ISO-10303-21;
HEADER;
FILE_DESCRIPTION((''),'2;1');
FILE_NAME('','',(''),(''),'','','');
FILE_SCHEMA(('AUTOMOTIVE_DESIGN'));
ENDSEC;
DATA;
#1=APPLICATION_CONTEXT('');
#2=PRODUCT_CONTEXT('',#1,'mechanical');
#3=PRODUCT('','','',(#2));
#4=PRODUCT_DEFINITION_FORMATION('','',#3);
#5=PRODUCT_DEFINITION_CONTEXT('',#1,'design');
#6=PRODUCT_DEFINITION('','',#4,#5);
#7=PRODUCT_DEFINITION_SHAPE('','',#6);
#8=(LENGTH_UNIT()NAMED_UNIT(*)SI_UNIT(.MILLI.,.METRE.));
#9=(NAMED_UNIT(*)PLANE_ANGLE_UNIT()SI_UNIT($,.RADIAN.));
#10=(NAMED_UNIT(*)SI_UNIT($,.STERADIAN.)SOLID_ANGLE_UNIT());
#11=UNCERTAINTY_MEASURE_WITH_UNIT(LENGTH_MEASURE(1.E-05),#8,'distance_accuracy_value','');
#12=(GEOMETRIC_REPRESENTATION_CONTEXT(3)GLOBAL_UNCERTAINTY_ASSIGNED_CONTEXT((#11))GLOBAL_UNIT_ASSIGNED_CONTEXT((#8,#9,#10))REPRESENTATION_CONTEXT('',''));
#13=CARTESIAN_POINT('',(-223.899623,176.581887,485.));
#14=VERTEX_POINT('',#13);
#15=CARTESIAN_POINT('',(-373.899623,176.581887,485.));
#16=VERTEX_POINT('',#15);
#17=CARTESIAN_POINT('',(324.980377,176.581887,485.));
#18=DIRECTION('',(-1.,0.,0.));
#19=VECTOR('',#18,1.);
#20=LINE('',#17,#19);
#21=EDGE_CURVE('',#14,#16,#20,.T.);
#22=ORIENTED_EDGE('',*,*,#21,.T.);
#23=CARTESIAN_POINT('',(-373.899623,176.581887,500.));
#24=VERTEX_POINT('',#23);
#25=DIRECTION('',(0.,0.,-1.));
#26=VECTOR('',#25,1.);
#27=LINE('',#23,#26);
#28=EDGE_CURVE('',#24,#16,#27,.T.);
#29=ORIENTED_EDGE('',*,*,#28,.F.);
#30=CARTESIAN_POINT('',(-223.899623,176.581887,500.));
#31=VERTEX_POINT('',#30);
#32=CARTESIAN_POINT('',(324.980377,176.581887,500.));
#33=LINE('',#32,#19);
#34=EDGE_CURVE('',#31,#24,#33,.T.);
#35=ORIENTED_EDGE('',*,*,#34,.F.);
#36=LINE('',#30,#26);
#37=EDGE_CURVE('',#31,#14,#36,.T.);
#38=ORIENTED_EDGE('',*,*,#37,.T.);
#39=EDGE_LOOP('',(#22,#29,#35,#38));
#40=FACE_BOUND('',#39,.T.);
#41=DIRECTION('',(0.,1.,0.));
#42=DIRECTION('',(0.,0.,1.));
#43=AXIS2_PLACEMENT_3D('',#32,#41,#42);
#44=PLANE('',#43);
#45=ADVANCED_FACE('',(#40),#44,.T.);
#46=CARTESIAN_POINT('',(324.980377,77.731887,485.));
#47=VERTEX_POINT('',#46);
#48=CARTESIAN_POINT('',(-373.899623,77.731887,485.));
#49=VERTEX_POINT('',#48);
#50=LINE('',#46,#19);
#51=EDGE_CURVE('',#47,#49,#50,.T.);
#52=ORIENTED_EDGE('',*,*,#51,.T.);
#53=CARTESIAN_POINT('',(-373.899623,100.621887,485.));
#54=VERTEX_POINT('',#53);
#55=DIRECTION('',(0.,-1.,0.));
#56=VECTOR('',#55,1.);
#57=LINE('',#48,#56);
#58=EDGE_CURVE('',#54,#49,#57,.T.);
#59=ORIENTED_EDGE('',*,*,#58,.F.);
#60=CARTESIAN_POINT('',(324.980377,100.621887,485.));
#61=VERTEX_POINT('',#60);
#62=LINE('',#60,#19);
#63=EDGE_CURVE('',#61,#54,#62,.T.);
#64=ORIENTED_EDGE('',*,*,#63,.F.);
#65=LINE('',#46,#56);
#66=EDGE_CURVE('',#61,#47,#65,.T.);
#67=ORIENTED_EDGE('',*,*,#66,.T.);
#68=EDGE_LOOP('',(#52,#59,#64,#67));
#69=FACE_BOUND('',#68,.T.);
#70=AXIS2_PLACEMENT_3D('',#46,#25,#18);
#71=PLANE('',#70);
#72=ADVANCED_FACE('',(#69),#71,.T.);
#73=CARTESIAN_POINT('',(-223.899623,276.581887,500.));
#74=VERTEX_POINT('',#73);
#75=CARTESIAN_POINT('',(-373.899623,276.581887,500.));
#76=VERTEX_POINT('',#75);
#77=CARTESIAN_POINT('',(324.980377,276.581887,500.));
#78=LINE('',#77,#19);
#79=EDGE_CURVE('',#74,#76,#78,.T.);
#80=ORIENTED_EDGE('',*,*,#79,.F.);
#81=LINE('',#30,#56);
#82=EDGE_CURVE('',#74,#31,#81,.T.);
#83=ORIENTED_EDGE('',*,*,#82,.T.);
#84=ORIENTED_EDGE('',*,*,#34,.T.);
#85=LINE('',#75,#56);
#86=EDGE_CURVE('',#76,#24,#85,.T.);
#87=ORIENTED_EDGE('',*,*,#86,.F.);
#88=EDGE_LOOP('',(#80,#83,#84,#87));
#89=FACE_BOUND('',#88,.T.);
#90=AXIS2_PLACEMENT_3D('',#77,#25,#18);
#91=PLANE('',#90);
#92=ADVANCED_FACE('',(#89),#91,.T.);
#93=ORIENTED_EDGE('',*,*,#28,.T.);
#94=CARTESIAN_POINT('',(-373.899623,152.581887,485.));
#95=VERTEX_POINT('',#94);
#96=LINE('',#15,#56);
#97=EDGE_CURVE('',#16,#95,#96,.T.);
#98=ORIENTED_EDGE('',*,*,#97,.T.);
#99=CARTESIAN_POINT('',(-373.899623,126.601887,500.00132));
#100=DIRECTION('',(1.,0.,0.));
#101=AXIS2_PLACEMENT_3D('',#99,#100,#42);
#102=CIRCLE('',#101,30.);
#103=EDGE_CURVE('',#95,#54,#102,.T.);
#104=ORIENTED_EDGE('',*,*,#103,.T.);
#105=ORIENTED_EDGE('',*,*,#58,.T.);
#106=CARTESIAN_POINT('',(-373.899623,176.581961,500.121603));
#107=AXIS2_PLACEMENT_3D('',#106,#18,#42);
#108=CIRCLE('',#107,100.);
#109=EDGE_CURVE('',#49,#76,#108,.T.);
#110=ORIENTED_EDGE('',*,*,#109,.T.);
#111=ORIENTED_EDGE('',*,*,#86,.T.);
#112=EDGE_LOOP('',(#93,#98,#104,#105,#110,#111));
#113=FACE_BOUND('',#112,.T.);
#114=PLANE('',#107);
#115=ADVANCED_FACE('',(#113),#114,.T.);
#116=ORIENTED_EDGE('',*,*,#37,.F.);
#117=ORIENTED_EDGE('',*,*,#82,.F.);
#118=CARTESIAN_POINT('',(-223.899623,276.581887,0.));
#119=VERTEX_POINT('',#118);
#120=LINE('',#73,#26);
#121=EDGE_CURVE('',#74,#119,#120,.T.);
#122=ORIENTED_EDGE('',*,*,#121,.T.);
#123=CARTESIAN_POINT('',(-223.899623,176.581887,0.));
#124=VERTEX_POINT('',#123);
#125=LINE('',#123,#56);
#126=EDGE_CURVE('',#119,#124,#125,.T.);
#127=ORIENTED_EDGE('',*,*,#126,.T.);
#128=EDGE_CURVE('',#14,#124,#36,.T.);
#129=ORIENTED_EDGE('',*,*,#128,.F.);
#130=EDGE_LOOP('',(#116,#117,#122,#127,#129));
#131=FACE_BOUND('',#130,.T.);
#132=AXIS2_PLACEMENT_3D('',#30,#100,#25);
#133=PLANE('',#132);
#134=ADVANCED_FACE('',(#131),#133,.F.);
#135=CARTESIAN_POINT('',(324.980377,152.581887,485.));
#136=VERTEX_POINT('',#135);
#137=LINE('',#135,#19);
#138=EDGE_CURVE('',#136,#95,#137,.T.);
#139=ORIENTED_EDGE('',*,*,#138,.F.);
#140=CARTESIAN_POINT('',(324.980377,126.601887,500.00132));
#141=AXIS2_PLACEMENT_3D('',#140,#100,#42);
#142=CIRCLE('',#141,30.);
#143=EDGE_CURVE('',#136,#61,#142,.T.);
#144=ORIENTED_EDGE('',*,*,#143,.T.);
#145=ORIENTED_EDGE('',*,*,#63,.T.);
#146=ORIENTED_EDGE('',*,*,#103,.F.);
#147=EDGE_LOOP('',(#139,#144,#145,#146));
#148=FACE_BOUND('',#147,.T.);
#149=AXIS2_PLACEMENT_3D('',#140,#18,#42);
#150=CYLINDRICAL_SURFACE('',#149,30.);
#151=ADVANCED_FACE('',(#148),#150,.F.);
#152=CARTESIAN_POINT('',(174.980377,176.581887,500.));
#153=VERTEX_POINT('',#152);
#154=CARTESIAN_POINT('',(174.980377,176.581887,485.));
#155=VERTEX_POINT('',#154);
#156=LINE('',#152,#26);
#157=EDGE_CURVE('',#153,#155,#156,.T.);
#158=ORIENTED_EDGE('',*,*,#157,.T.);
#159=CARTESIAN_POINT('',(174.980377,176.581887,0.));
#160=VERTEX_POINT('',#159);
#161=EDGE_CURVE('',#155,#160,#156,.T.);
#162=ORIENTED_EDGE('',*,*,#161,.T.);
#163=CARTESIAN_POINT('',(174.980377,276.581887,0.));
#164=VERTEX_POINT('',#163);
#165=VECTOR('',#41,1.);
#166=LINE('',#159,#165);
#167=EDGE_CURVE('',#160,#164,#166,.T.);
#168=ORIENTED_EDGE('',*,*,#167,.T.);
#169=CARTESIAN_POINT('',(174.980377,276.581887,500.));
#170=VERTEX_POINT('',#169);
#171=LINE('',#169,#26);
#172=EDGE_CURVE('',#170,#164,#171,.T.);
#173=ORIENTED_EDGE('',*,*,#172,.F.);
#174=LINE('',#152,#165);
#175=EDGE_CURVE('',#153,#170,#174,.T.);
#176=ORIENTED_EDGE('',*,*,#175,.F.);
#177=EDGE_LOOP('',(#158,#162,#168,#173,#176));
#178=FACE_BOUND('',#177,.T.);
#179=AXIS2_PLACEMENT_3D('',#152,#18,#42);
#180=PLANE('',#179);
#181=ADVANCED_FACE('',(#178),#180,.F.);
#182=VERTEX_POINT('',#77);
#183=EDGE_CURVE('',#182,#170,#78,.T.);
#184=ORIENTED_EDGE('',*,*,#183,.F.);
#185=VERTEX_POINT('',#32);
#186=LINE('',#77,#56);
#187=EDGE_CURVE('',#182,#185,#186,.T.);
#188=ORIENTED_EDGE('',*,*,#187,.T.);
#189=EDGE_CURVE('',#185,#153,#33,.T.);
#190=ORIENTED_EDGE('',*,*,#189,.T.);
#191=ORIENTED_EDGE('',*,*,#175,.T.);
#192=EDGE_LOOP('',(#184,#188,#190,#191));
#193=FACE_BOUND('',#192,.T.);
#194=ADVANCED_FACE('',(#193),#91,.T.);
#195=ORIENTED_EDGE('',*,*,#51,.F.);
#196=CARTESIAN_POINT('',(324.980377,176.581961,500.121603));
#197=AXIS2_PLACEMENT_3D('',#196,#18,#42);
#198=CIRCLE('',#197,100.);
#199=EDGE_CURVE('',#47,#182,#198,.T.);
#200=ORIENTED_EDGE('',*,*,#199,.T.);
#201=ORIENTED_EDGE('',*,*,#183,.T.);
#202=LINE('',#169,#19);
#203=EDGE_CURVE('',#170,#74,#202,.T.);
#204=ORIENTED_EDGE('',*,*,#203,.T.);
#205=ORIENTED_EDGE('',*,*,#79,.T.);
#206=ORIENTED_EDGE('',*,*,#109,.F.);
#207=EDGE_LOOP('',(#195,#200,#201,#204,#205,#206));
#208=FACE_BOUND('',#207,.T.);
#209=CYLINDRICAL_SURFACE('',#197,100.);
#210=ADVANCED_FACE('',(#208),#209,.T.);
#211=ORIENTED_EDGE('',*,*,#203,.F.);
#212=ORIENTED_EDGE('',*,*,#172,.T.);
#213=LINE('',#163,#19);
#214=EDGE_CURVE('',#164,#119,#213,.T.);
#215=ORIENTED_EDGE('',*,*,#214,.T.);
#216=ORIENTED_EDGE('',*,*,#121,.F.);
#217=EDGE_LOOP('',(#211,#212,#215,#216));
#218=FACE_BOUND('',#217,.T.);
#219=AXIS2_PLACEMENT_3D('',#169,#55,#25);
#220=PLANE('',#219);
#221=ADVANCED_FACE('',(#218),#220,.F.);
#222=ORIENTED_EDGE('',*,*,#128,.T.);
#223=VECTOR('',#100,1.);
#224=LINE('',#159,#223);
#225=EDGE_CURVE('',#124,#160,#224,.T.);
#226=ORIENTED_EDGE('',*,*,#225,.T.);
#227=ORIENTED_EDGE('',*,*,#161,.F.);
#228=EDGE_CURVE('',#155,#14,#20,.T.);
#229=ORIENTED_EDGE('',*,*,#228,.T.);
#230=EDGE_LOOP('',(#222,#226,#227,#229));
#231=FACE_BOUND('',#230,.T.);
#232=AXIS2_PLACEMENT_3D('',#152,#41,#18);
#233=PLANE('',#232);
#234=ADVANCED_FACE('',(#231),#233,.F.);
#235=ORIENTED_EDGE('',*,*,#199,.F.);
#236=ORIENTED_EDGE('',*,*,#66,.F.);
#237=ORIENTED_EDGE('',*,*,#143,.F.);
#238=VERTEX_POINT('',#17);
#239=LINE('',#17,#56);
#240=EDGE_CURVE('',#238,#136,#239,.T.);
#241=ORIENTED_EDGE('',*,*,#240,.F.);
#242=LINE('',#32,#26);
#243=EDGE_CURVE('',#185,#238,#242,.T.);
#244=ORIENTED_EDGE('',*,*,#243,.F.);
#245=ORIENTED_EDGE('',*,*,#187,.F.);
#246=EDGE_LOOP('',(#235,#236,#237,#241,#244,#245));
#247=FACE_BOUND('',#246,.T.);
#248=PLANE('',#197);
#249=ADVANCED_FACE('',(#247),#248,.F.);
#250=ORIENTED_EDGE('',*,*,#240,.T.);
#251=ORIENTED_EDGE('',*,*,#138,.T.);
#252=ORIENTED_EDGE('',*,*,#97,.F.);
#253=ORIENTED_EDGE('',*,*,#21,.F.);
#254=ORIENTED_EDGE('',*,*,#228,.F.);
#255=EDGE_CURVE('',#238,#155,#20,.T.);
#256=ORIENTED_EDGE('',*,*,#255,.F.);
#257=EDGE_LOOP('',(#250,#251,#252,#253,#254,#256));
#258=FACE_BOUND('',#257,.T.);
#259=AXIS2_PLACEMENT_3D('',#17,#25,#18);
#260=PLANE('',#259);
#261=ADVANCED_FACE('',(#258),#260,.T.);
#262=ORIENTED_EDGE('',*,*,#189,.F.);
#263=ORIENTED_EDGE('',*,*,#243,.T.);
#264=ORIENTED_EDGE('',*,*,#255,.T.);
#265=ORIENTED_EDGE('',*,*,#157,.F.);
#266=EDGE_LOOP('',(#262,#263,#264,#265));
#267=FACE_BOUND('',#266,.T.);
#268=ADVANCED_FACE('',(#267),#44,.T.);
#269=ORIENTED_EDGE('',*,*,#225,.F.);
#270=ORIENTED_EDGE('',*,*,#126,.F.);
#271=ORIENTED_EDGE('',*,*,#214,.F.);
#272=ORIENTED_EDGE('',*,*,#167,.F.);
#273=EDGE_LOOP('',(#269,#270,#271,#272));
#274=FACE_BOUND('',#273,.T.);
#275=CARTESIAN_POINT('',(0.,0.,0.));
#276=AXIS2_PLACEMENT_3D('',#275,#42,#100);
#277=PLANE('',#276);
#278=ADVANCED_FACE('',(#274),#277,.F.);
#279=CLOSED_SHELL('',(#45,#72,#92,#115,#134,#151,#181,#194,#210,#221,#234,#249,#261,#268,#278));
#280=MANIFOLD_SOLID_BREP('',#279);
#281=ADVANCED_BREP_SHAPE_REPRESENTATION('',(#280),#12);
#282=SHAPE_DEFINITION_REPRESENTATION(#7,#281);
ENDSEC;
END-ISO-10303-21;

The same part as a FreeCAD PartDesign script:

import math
import FreeCAD as App
import Part
import Sketcher
Q = App.Units.Quantity


def add_polygon(sketch, points):
    """Adds a closed chain of lines whose ends are joined by coincident constraints."""
    first, n = sketch.GeometryCount, len(points)
    for a, b in zip(points, points[1:] + points[:1]):
        sketch.addGeometry(Part.LineSegment(App.Vector(*a, 0), App.Vector(*b, 0)), False)
    for i in range(n):
        sketch.addConstraint(Sketcher.Constraint("Coincident", first + i, 2, first + (i + 1) % n, 1))

doc = App.newDocument("Part")
body = doc.addObject("PartDesign::Body", "Body")

sketch1 = body.newObject("Sketcher::SketchObject", "Sketch")
sketch1.AttachmentSupport = (doc.getObject("XY_Plane"), [""])
sketch1.MapMode = "FlatFace"
add_polygon(sketch1, [(-224, 277), (-224, 177), (175, 177), (175, 277)])
sketch1.addConstraint([
    Sketcher.Constraint("Vertical", 0),
    Sketcher.Constraint("Horizontal", 1),
    Sketcher.Constraint("Vertical", 2),
    Sketcher.Constraint("Horizontal", 3),
    Sketcher.Constraint("DistanceY", 0, 2, 0, 1, Q("100 mm")),
    Sketcher.Constraint("DistanceX", 1, 1, 1, 2, Q("398.88 mm")),
    Sketcher.Constraint("DistanceX", 0, 2, -1, 1, Q("223.899623 mm")),
    Sketcher.Constraint("DistanceY", -1, 1, 0, 2, Q("176.581887 mm")),
])
pad1 = body.newObject("PartDesign::Pad", "Pad")
pad1.Profile = sketch1
pad1.Length = 500

sketch2 = body.newObject("Sketcher::SketchObject", "Sketch001")
sketch2.AttachmentSupport = (doc.getObject("YZ_Plane"), [""])
sketch2.MapMode = "FlatFace"
sketch2.AttachmentOffset = App.Placement(App.Vector(0, 0, -373.899623), App.Rotation())
sketch2.addGeometry([
    Part.LineSegment(App.Vector(277, 500, 0), App.Vector(177, 500, 0)),
    Part.LineSegment(App.Vector(177, 500, 0), App.Vector(177, 485, 0)),
    Part.LineSegment(App.Vector(177, 485, 0), App.Vector(153, 485, 0)),
    Part.ArcOfCircle(Part.Circle(App.Vector(127, 500, 0), App.Vector(0, 0, 1), 30), math.radians(-30), math.radians(210)),
    Part.LineSegment(App.Vector(101, 485, 0), App.Vector(78, 485, 0)),
    Part.ArcOfCircle(Part.Circle(App.Vector(177, 500, 0), App.Vector(0, 0, 1), 100), math.radians(0), math.radians(189)),
], False)
sketch2.addConstraint([
    Sketcher.Constraint("Coincident", 0, 2, 1, 1),
    Sketcher.Constraint("Coincident", 1, 2, 2, 1),
    Sketcher.Constraint("Coincident", 2, 2, 3, 1),
    Sketcher.Constraint("Coincident", 3, 2, 4, 1),
    Sketcher.Constraint("Coincident", 4, 2, 5, 2),
    Sketcher.Constraint("Coincident", 5, 1, 0, 1),
    Sketcher.Constraint("Horizontal", 0),
    Sketcher.Constraint("Vertical", 1),
    Sketcher.Constraint("Horizontal", 2),
    Sketcher.Constraint("Horizontal", 4),
    Sketcher.Constraint("Horizontal", 2, 2, 3, 2),
    Sketcher.Constraint("Radius", 3, Q("30 mm")),
    Sketcher.Constraint("Radius", 5, Q("100 mm")),
    Sketcher.Constraint("DistanceX", 0, 2, 0, 1, Q("100 mm")),
    Sketcher.Constraint("DistanceX", 2, 2, 2, 1, Q("24 mm")),
    Sketcher.Constraint("DistanceY", 1, 2, 1, 1, Q("15 mm")),
    Sketcher.Constraint("DistanceY", -1, 1, 0, 2, Q("500 mm")),
    Sketcher.Constraint("DistanceX", 4, 2, 4, 1, Q("22.89 mm")),
    Sketcher.Constraint("DistanceX", 3, 3, 0, 2, Q("49.98 mm")),
    Sketcher.Constraint("DistanceX", -1, 1, 5, 3, Q("176.581961 mm")),
])
pad2 = body.newObject("PartDesign::Pad", "Pad001")
pad2.Profile = sketch2
pad2.Length = 698.88

doc.recompute()
